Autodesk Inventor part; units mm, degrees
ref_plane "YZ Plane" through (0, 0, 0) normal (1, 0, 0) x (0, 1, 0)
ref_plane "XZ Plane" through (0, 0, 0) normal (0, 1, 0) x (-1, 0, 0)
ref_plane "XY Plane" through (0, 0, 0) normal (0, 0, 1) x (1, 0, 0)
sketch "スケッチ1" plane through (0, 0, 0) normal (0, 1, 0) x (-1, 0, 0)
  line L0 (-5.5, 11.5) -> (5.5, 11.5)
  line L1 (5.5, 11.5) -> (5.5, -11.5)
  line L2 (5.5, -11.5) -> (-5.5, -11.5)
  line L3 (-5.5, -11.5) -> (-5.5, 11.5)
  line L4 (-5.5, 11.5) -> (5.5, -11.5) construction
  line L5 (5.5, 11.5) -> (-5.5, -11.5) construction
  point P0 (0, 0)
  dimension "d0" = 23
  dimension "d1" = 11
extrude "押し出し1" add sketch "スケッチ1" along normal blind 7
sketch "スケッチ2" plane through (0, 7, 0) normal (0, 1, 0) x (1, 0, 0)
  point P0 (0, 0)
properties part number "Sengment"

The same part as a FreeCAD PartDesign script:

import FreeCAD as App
import Part
import Sketcher

doc = App.newDocument("Part")
body = doc.addObject("PartDesign::Body", "Body")

# Sketch on XZ plane
sketch1 = body.newObject("Sketcher::SketchObject", "Sketch")
sketch1.AttachmentSupport = (doc.getObject("XZ_Plane"), [""])
sketch1.MapMode = "FlatFace"
sketch1.addGeometry([
    Part.LineSegment(App.Vector(-6, 12, 0), App.Vector(6, 12, 0)),
    Part.LineSegment(App.Vector(6, 12, 0), App.Vector(6, -12, 0)),
    Part.LineSegment(App.Vector(6, -12, 0), App.Vector(-6, -12, 0)),
    Part.LineSegment(App.Vector(-6, -12, 0), App.Vector(-6, 12, 0)),
], False)
sketch1.addConstraint([
    Sketcher.Constraint("Coincident", 0, 2, 1, 1),
    Sketcher.Constraint("Coincident", 1, 2, 2, 1),
    Sketcher.Constraint("Coincident", 2, 2, 3, 1),
    Sketcher.Constraint("Coincident", 3, 2, 0, 1),
    Sketcher.Constraint("Horizontal", 0),
    Sketcher.Constraint("Vertical", 1),
    Sketcher.Constraint("Horizontal", 2),
    Sketcher.Constraint("Vertical", 3),
    Sketcher.Constraint("Symmetric", 0, 2, 2, 2, -1, 1),
    Sketcher.Constraint("DistanceX", 0, 1, 0, 2, 11.0),
    Sketcher.Constraint("DistanceY", 1, 2, 1, 1, 23.0),
])
pad1 = body.newObject("PartDesign::Pad", "Pad")
pad1.Profile = sketch1
pad1.Length = 7
pad1.Reversed = True

doc.recompute()
